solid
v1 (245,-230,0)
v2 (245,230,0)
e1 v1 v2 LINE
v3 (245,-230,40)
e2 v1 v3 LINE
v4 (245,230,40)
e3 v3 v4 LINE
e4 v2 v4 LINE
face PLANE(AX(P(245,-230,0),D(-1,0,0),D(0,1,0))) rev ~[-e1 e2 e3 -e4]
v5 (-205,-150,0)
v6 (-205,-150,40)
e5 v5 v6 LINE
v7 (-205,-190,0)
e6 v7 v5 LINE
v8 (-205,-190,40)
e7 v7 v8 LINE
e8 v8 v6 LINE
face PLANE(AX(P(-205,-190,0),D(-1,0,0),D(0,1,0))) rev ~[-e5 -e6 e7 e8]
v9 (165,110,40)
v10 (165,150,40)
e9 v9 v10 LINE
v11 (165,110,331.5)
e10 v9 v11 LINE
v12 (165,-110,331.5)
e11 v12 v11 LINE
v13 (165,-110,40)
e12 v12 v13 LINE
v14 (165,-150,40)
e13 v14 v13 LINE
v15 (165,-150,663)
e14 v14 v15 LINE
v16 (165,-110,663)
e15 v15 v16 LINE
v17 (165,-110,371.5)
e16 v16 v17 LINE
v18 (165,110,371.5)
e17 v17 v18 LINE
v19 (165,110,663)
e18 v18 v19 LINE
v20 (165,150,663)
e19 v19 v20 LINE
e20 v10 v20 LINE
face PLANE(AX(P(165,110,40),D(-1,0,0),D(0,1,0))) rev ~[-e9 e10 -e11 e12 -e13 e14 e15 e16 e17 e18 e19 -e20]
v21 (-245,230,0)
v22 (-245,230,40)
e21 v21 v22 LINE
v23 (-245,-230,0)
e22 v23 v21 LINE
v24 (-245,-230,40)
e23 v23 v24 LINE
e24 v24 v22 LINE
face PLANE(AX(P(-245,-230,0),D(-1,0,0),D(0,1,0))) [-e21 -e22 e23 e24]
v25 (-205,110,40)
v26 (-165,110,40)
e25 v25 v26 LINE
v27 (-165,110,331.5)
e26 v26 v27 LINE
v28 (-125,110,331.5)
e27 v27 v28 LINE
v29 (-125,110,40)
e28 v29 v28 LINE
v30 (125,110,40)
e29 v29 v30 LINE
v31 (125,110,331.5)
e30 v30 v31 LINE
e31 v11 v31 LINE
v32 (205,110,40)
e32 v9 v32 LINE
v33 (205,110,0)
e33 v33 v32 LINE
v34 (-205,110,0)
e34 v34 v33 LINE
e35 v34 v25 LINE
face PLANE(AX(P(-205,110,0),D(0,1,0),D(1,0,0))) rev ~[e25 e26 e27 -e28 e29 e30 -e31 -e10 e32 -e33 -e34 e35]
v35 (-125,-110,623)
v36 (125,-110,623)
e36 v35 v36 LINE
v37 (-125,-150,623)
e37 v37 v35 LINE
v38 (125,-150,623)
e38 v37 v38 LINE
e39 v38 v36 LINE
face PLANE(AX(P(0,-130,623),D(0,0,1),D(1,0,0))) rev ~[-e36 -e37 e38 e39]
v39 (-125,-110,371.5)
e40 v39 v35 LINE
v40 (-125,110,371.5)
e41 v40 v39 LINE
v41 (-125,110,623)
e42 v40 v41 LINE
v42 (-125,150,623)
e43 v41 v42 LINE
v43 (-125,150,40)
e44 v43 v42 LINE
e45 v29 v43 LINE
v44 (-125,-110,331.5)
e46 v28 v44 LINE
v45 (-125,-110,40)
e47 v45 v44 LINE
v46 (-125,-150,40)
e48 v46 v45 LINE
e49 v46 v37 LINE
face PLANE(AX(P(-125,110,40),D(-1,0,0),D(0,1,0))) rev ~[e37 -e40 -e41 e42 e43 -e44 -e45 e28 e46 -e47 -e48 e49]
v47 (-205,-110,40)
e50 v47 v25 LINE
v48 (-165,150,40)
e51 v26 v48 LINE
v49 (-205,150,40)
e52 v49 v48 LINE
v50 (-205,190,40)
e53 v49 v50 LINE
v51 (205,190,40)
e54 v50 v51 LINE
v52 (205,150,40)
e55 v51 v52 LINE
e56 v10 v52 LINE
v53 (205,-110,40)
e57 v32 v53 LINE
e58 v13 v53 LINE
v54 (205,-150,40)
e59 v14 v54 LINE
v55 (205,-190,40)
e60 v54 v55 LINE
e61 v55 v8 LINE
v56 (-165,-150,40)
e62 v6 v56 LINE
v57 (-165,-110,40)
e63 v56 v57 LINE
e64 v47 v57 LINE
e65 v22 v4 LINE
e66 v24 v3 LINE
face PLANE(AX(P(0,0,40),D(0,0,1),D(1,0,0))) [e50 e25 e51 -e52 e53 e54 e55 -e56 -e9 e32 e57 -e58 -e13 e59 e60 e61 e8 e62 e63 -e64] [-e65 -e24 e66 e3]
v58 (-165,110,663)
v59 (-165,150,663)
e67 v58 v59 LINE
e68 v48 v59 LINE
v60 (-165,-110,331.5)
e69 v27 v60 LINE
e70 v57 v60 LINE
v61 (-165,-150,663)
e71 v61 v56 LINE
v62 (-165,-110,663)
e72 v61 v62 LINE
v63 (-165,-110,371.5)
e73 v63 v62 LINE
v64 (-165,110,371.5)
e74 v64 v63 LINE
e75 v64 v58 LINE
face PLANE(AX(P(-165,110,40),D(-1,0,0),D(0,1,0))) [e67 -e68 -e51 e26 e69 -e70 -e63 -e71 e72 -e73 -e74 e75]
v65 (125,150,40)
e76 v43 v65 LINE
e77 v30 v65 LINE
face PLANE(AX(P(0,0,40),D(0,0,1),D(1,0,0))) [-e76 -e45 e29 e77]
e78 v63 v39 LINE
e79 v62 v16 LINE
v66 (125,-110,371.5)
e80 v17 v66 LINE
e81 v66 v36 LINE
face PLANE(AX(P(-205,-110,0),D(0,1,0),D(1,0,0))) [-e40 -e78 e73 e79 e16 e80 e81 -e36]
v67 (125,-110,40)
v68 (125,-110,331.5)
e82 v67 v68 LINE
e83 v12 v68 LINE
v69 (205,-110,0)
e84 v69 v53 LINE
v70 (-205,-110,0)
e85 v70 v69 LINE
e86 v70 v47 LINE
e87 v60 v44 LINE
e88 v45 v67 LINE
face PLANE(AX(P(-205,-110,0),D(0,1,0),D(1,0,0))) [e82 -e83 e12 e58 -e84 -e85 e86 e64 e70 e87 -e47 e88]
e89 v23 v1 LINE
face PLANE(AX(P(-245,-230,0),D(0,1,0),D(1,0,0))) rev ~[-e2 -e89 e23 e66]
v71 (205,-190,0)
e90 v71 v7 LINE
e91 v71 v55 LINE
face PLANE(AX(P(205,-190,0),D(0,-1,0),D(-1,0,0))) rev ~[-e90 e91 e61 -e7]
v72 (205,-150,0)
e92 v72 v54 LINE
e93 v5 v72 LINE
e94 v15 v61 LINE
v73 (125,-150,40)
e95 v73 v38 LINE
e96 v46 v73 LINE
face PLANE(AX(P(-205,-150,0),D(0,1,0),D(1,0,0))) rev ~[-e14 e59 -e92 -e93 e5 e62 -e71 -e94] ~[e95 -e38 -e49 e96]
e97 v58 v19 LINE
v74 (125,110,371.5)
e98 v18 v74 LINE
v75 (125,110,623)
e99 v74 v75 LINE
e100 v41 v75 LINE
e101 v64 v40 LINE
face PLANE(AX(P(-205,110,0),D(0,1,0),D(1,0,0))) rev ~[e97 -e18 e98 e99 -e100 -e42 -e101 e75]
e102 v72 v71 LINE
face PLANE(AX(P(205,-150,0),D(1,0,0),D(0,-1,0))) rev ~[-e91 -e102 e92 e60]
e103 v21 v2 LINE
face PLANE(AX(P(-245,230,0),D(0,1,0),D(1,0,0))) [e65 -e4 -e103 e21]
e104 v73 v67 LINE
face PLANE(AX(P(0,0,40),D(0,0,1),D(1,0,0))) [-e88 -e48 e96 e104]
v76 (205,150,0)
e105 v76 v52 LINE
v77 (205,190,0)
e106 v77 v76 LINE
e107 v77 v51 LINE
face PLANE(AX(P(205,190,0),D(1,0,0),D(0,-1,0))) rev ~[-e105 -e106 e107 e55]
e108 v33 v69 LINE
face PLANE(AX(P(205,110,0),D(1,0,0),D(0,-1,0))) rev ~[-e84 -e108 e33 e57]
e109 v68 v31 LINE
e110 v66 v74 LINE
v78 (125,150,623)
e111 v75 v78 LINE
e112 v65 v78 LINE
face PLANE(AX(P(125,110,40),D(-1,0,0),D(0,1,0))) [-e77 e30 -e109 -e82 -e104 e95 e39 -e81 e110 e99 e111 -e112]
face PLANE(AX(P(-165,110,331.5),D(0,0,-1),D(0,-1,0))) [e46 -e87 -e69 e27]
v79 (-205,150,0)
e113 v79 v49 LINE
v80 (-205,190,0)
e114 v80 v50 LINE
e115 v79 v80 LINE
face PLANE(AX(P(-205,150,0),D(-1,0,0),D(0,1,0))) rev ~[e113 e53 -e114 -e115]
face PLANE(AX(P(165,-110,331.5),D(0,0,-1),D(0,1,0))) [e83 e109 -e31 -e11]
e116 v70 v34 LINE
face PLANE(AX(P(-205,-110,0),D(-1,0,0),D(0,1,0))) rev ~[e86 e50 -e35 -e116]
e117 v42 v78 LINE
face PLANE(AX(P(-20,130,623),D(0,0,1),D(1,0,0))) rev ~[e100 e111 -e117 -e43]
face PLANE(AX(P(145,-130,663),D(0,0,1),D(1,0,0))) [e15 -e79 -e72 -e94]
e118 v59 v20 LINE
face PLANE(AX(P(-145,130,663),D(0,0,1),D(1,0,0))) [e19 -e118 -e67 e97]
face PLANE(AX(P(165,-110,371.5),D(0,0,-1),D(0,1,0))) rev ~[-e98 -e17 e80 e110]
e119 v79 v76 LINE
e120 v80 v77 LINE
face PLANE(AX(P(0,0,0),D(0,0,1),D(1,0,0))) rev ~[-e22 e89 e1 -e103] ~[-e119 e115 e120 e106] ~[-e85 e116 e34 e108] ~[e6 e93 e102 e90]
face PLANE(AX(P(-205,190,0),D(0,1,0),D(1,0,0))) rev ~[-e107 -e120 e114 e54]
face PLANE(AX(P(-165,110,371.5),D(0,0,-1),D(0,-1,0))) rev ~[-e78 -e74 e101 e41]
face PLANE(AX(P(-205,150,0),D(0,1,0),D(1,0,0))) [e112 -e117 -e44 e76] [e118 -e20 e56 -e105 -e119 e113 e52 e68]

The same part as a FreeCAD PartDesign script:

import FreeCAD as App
import Part
import Sketcher
from FreeCAD import Vector
Q = App.Units.Quantity

doc = App.newDocument("Part")
params = doc.addObject("Spreadsheet::Sheet", "Params")
for row, (alias, value) in enumerate([
    ("sketch1_width", "490 mm"),
    ("sketch1_width2", "410 mm"),
    ("sketch1_height", "460 mm"),
    ("sketch1_height2", "40 mm"),
    ("sketch1_height3", "220 mm"),
    ("pad1_length", "40 mm"),
    ("sketch2_width", "40 mm"),
    ("pad2_length", "623 mm"),
    ("sketch3_width", "290 mm"),
    ("sketch3_width2", "330 mm"),
    ("sketch3_height", "40 mm"),
    ("pad3_length", "40 mm"),
    ("sketch4_width", "220 mm"),
    ("sketch4_height", "40 mm"),
    ("pad4_length", "40 mm"),
    ("sketch5_width", "220 mm"),
    ("sketch5_height", "40 mm"),
    ("pad5_length", "40 mm"),
], start=1):
    params.set(f"A{row}", alias)
    params.set(f"B{row}", "=" + value)
    params.setAlias(f"B{row}", alias)

body = doc.addObject("PartDesign::Body", "Body")

# Sketch on XY plane
sketch1 = body.newObject("Sketcher::SketchObject", "Sketch")
sketch1.AttachmentSupport = (doc.getObject("XY_Plane"), [""])
sketch1.MapMode = "FlatFace"
sketch1.addGeometry([
    Part.LineSegment(Vector(-245, 230, 0), Vector(-245, -230, 0)),  # 0
    Part.LineSegment(Vector(-245, -230, 0), Vector(245, -230, 0)),  # 1
    Part.LineSegment(Vector(245, -230, 0), Vector(245, 230, 0)),  # 2
    Part.LineSegment(Vector(245, 230, 0), Vector(-245, 230, 0)),  # 3
    Part.LineSegment(Vector(205, 190, 0), Vector(205, 150, 0)),  # 4
    Part.LineSegment(Vector(205, 150, 0), Vector(-205, 150, 0)),  # 5
    Part.LineSegment(Vector(-205, 150, 0), Vector(-205, 190, 0)),  # 6
    Part.LineSegment(Vector(-205, 190, 0), Vector(205, 190, 0)),  # 7
    Part.LineSegment(Vector(205, 110, 0), Vector(205, -110, 0)),  # 8
    Part.LineSegment(Vector(205, -110, 0), Vector(-205, -110, 0)),  # 9
    Part.LineSegment(Vector(-205, -110, 0), Vector(-205, 110, 0)),  # 10
    Part.LineSegment(Vector(-205, 110, 0), Vector(205, 110, 0)),  # 11
    Part.LineSegment(Vector(205, -150, 0), Vector(205, -190, 0)),  # 12
    Part.LineSegment(Vector(205, -190, 0), Vector(-205, -190, 0)),  # 13
    Part.LineSegment(Vector(-205, -190, 0), Vector(-205, -150, 0)),  # 14
    Part.LineSegment(Vector(-205, -150, 0), Vector(205, -150, 0)),  # 15
], False)
sketch1.addConstraint([
    Sketcher.Constraint("Coincident", 0, 2, 1, 1),
    Sketcher.Constraint("Coincident", 1, 2, 2, 1),
    Sketcher.Constraint("Coincident", 2, 2, 3, 1),
    Sketcher.Constraint("Coincident", 3, 2, 0, 1),
    Sketcher.Constraint("Coincident", 4, 2, 5, 1),
    Sketcher.Constraint("Coincident", 5, 2, 6, 1),
    Sketcher.Constraint("Coincident", 6, 2, 7, 1),
    Sketcher.Constraint("Coincident", 7, 2, 4, 1),
    Sketcher.Constraint("Coincident", 8, 2, 9, 1),
    Sketcher.Constraint("Coincident", 9, 2, 10, 1),
    Sketcher.Constraint("Coincident", 10, 2, 11, 1),
    Sketcher.Constraint("Coincident", 11, 2, 8, 1),
    Sketcher.Constraint("Coincident", 12, 2, 13, 1),
    Sketcher.Constraint("Coincident", 13, 2, 14, 1),
    Sketcher.Constraint("Coincident", 14, 2, 15, 1),
    Sketcher.Constraint("Coincident", 15, 2, 12, 1),
    Sketcher.Constraint("Vertical", 0),
    Sketcher.Constraint("Horizontal", 1),
    Sketcher.Constraint("Vertical", 2),
    Sketcher.Constraint("Horizontal", 3),
    Sketcher.Constraint("Vertical", 4),
    Sketcher.Constraint("Horizontal", 5),
    Sketcher.Constraint("Vertical", 6),
    Sketcher.Constraint("Horizontal", 7),
    Sketcher.Constraint("Vertical", 8),
    Sketcher.Constraint("Horizontal", 9),
    Sketcher.Constraint("Vertical", 10),
    Sketcher.Constraint("Horizontal", 11),
    Sketcher.Constraint("Vertical", 12),
    Sketcher.Constraint("Horizontal", 13),
    Sketcher.Constraint("Vertical", 14),
    Sketcher.Constraint("Horizontal", 15),
    Sketcher.Constraint("Symmetric", 0, 2, 2, 2, -1, 1),
    Sketcher.Constraint("Symmetric", 8, 2, 10, 2, -1, 1),
    Sketcher.Constraint("Symmetric", 6, 2, 12, 2, -1, 1),
    Sketcher.Constraint("Symmetric", 4, 2, 14, 2, -1, 1),
    Sketcher.Constraint("Vertical", 7, 2, 8, 2),
    Sketcher.Constraint("Vertical", 6, 2, 9, 2),
    Sketcher.Constraint("DistanceX", 1, 1, 1, 2, Q("490 mm")),
    Sketcher.Constraint("DistanceX", 5, 2, 5, 1, Q("410 mm")),
    Sketcher.Constraint("DistanceY", 0, 2, 0, 1, Q("460 mm")),
    Sketcher.Constraint("DistanceY", 4, 2, 4, 1, Q("40 mm")),
    Sketcher.Constraint("DistanceY", 8, 2, 8, 1, Q("220 mm")),
    Sketcher.Constraint("DistanceY", -1, 1, 4, 2, Q("150 mm")),
])
sketch1.setExpression("Constraints[38]", "Params.sketch1_width")
sketch1.setExpression("Constraints[39]", "Params.sketch1_width2")
sketch1.setExpression("Constraints[40]", "Params.sketch1_height")
sketch1.setExpression("Constraints[41]", "Params.sketch1_height2")
sketch1.setExpression("Constraints[42]", "Params.sketch1_height3")
pad1 = body.newObject("PartDesign::Pad", "Pad")
pad1.Profile = sketch1
pad1.setExpression("Length", "Params.pad1_length")

# Sketch on XY plane
sketch2 = body.newObject("Sketcher::SketchObject", "Sketch001")
sketch2.AttachmentSupport = (doc.getObject("XY_Plane"), [""])
sketch2.MapMode = "FlatFace"
sketch2.AttachmentOffset = App.Placement(Vector(0, 0, 40), App.Rotation())
sketch2.addGeometry([
    Part.LineSegment(Vector(-165, 150, 0), Vector(-165, 110, 0)),  # 0
    Part.LineSegment(Vector(-165, 110, 0), Vector(-125, 110, 0)),  # 1
    Part.LineSegment(Vector(-125, 110, 0), Vector(-125, 150, 0)),  # 2
    Part.LineSegment(Vector(-125, 150, 0), Vector(-165, 150, 0)),  # 3
    Part.LineSegment(Vector(125, 150, 0), Vector(125, 110, 0)),  # 4
    Part.LineSegment(Vector(125, 110, 0), Vector(165, 110, 0)),  # 5
    Part.LineSegment(Vector(165, 110, 0), Vector(165, 150, 0)),  # 6
    Part.LineSegment(Vector(165, 150, 0), Vector(125, 150, 0)),  # 7
    Part.LineSegment(Vector(125, -110, 0), Vector(125, -150, 0)),  # 8
    Part.LineSegment(Vector(125, -150, 0), Vector(165, -150, 0)),  # 9
    Part.LineSegment(Vector(165, -150, 0), Vector(165, -110, 0)),  # 10
    Part.LineSegment(Vector(165, -110, 0), Vector(125, -110, 0)),  # 11
    Part.LineSegment(Vector(-165, -110, 0), Vector(-165, -150, 0)),  # 12
    Part.LineSegment(Vector(-165, -150, 0), Vector(-125, -150, 0)),  # 13
    Part.LineSegment(Vector(-125, -150, 0), Vector(-125, -110, 0)),  # 14
    Part.LineSegment(Vector(-125, -110, 0), Vector(-165, -110, 0)),  # 15
], False)
sketch2.addConstraint([
    Sketcher.Constraint("Coincident", 0, 2, 1, 1),
    Sketcher.Constraint("Coincident", 1, 2, 2, 1),
    Sketcher.Constraint("Coincident", 2, 2, 3, 1),
    Sketcher.Constraint("Coincident", 3, 2, 0, 1),
    Sketcher.Constraint("Coincident", 4, 2, 5, 1),
    Sketcher.Constraint("Coincident", 5, 2, 6, 1),
    Sketcher.Constraint("Coincident", 6, 2, 7, 1),
    Sketcher.Constraint("Coincident", 7, 2, 4, 1),
    Sketcher.Constraint("Coincident", 8, 2, 9, 1),
    Sketcher.Constraint("Coincident", 9, 2, 10, 1),
    Sketcher.Constraint("Coincident", 10, 2, 11, 1),
    Sketcher.Constraint("Coincident", 11, 2, 8, 1),
    Sketcher.Constraint("Coincident", 12, 2, 13, 1),
    Sketcher.Constraint("Coincident", 13, 2, 14, 1),
    Sketcher.Constraint("Coincident", 14, 2, 15, 1),
    Sketcher.Constraint("Coincident", 15, 2, 12, 1),
    Sketcher.Constraint("Vertical", 0),
    Sketcher.Constraint("Horizontal", 1),
    Sketcher.Constraint("Vertical", 2),
    Sketcher.Constraint("Horizontal", 3),
    Sketcher.Constraint("Vertical", 4),
    Sketcher.Constraint("Horizontal", 5),
    Sketcher.Constraint("Vertical", 6),
    Sketcher.Constraint("Horizontal", 7),
    Sketcher.Constraint("Vertical", 8),
    Sketcher.Constraint("Horizontal", 9),
    Sketcher.Constraint("Vertical", 10),
    Sketcher.Constraint("Horizontal", 11),
    Sketcher.Constraint("Vertical", 12),
    Sketcher.Constraint("Horizontal", 13),
    Sketcher.Constraint("Vertical", 14),
    Sketcher.Constraint("Horizontal", 15),
    Sketcher.Constraint("Symmetric", 2, 2, 8, 2, -1, 1),
    Sketcher.Constraint("Symmetric", 0, 2, 10, 2, -1, 1),
    Sketcher.Constraint("Symmetric", 6, 2, 12, 2, -1, 1),
    Sketcher.Constraint("Symmetric", 4, 2, 14, 2, -1, 1),
    Sketcher.Constraint("Symmetric", 1, 2, 4, 2, -2),
    Sketcher.Constraint("Symmetric", 3, 2, 6, 2, -2),
    Sketcher.Constraint("Equal", 15, 0),
    Sketcher.Constraint("DistanceX", 1, 1, 1, 2, Q("40 mm")),
    Sketcher.Constraint("DistanceX", 0, 2, -1, 1, Q("165 mm")),
    Sketcher.Constraint("DistanceY", -1, 1, 0, 2, Q("110 mm")),
])
sketch2.setExpression("Constraints[39]", "Params.sketch2_width")
pad2 = body.newObject("PartDesign::Pad", "Pad001")
pad2.Profile = sketch2
pad2.setExpression("Length", "Params.pad2_length")

# Sketch on XY plane
sketch3 = body.newObject("Sketcher::SketchObject", "Sketch002")
sketch3.AttachmentSupport = (doc.getObject("XY_Plane"), [""])
sketch3.MapMode = "FlatFace"
sketch3.AttachmentOffset = App.Placement(Vector(0, 0, 663), App.Rotation())
sketch3.addGeometry([
    Part.LineSegment(Vector(-165, 150, 0), Vector(-165, 110, 0)),  # 0
    Part.LineSegment(Vector(-165, 110, 0), Vector(125, 110, 0)),  # 1
    Part.LineSegment(Vector(125, 110, 0), Vector(125, 150, 0)),  # 2
    Part.LineSegment(Vector(125, 150, 0), Vector(-165, 150, 0)),  # 3
    Part.LineSegment(Vector(-165, -110, 0), Vector(-165, -150, 0)),  # 4
    Part.LineSegment(Vector(-165, -150, 0), Vector(165, -150, 0)),  # 5
    Part.LineSegment(Vector(165, -150, 0), Vector(165, -110, 0)),  # 6
    Part.LineSegment(Vector(165, -110, 0), Vector(-165, -110, 0)),  # 7
], False)
sketch3.addConstraint([
    Sketcher.Constraint("Coincident", 0, 2, 1, 1),
    Sketcher.Constraint("Coincident", 1, 2, 2, 1),
    Sketcher.Constraint("Coincident", 2, 2, 3, 1),
    Sketcher.Constraint("Coincident", 3, 2, 0, 1),
    Sketcher.Constraint("Coincident", 4, 2, 5, 1),
    Sketcher.Constraint("Coincident", 5, 2, 6, 1),
    Sketcher.Constraint("Coincident", 6, 2, 7, 1),
    Sketcher.Constraint("Coincident", 7, 2, 4, 1),
    Sketcher.Constraint("Vertical", 0),
    Sketcher.Constraint("Horizontal", 1),
    Sketcher.Constraint("Vertical", 2),
    Sketcher.Constraint("Horizontal", 3),
    Sketcher.Constraint("Vertical", 4),
    Sketcher.Constraint("Horizontal", 5),
    Sketcher.Constraint("Vertical", 6),
    Sketcher.Constraint("Horizontal", 7),
    Sketcher.Constraint("Symmetric", 3, 2, 5, 2, -1, 1),
    Sketcher.Constraint("Symmetric", 0, 2, 7, 2, -1),
    Sketcher.Constraint("DistanceX", 1, 1, 1, 2, Q("290 mm")),
    Sketcher.Constraint("DistanceX", 5, 1, 5, 2, Q("330 mm")),
    Sketcher.Constraint("DistanceY", 0, 2, 0, 1, Q("40 mm")),
    Sketcher.Constraint("DistanceY", -1, 1, 0, 2, Q("110 mm")),
])
sketch3.setExpression("Constraints[18]", "Params.sketch3_width")
sketch3.setExpression("Constraints[19]", "Params.sketch3_width2")
sketch3.setExpression("Constraints[20]", "Params.sketch3_height")
pad3 = body.newObject("PartDesign::Pad", "Pad002")
pad3.Profile = sketch3
pad3.setExpression("Length", "Params.pad3_length")
pad3.Reversed = True

# Sketch on YZ plane
sketch4 = body.newObject("Sketcher::SketchObject", "Sketch003")
sketch4.AttachmentSupport = (doc.getObject("YZ_Plane"), [""])
sketch4.MapMode = "FlatFace"
sketch4.AttachmentOffset = App.Placement(Vector(0, 0, 165), App.Rotation())
sketch4.addGeometry([
    Part.LineSegment(Vector(-110, 372, 0), Vector(-110, 332, 0)),
    Part.LineSegment(Vector(-110, 332, 0), Vector(110, 332, 0)),
    Part.LineSegment(Vector(110, 332, 0), Vector(110, 372, 0)),
    Part.LineSegment(Vector(110, 372, 0), Vector(-110, 372, 0)),
], False)
sketch4.addConstraint([
    Sketcher.Constraint("Coincident", 0, 2, 1, 1),
    Sketcher.Constraint("Coincident", 1, 2, 2, 1),
    Sketcher.Constraint("Coincident", 2, 2, 3, 1),
    Sketcher.Constraint("Coincident", 3, 2, 0, 1),
    Sketcher.Constraint("Vertical", 0),
    Sketcher.Constraint("Horizontal", 1),
    Sketcher.Constraint("Vertical", 2),
    Sketcher.Constraint("Horizontal", 3),
    Sketcher.Constraint("DistanceX", 1, 1, 1, 2, Q("220 mm")),
    Sketcher.Constraint("DistanceY", 0, 2, 0, 1, Q("40 mm")),
    Sketcher.Constraint("DistanceX", 0, 2, -1, 1, Q("110 mm")),
    Sketcher.Constraint("DistanceY", -1, 1, 0, 2, Q("331.5 mm")),
])
sketch4.setExpression("Constraints[8]", "Params.sketch4_width")
sketch4.setExpression("Constraints[9]", "Params.sketch4_height")
pad4 = body.newObject("PartDesign::Pad", "Pad003")
pad4.Profile = sketch4
pad4.setExpression("Length", "Params.pad4_length")
pad4.Reversed = True

# Sketch on YZ plane
sketch5 = body.newObject("Sketcher::SketchObject", "Sketch004")
sketch5.AttachmentSupport = (doc.getObject("YZ_Plane"), [""])
sketch5.MapMode = "FlatFace"
sketch5.AttachmentOffset = App.Placement(Vector(0, 0, -165), App.Rotation())
sketch5.addGeometry([
    Part.LineSegment(Vector(110, 372, 0), Vector(110, 332, 0)),
    Part.LineSegment(Vector(110, 332, 0), Vector(-110, 332, 0)),
    Part.LineSegment(Vector(-110, 332, 0), Vector(-110, 372, 0)),
    Part.LineSegment(Vector(-110, 372, 0), Vector(110, 372, 0)),
], False)
sketch5.addConstraint([
    Sketcher.Constraint("Coincident", 0, 2, 1, 1),
    Sketcher.Constraint("Coincident", 1, 2, 2, 1),
    Sketcher.Constraint("Coincident", 2, 2, 3, 1),
    Sketcher.Constraint("Coincident", 3, 2, 0, 1),
    Sketcher.Constraint("Vertical", 0),
    Sketcher.Constraint("Horizontal", 1),
    Sketcher.Constraint("Vertical", 2),
    Sketcher.Constraint("Horizontal", 3),
    Sketcher.Constraint("DistanceX", 1, 2, 1, 1, Q("220 mm")),
    Sketcher.Constraint("DistanceY", 0, 2, 0, 1, Q("40 mm")),
    Sketcher.Constraint("DistanceX", -1, 1, 0, 2, Q("110 mm")),
    Sketcher.Constraint("DistanceY", -1, 1, 0, 2, Q("331.5 mm")),
])
sketch5.setExpression("Constraints[8]", "Params.sketch5_width")
sketch5.setExpression("Constraints[9]", "Params.sketch5_height")
pad5 = body.newObject("PartDesign::Pad", "Pad004")
pad5.Profile = sketch5
pad5.setExpression("Length", "Params.pad5_length")

doc.recompute()
